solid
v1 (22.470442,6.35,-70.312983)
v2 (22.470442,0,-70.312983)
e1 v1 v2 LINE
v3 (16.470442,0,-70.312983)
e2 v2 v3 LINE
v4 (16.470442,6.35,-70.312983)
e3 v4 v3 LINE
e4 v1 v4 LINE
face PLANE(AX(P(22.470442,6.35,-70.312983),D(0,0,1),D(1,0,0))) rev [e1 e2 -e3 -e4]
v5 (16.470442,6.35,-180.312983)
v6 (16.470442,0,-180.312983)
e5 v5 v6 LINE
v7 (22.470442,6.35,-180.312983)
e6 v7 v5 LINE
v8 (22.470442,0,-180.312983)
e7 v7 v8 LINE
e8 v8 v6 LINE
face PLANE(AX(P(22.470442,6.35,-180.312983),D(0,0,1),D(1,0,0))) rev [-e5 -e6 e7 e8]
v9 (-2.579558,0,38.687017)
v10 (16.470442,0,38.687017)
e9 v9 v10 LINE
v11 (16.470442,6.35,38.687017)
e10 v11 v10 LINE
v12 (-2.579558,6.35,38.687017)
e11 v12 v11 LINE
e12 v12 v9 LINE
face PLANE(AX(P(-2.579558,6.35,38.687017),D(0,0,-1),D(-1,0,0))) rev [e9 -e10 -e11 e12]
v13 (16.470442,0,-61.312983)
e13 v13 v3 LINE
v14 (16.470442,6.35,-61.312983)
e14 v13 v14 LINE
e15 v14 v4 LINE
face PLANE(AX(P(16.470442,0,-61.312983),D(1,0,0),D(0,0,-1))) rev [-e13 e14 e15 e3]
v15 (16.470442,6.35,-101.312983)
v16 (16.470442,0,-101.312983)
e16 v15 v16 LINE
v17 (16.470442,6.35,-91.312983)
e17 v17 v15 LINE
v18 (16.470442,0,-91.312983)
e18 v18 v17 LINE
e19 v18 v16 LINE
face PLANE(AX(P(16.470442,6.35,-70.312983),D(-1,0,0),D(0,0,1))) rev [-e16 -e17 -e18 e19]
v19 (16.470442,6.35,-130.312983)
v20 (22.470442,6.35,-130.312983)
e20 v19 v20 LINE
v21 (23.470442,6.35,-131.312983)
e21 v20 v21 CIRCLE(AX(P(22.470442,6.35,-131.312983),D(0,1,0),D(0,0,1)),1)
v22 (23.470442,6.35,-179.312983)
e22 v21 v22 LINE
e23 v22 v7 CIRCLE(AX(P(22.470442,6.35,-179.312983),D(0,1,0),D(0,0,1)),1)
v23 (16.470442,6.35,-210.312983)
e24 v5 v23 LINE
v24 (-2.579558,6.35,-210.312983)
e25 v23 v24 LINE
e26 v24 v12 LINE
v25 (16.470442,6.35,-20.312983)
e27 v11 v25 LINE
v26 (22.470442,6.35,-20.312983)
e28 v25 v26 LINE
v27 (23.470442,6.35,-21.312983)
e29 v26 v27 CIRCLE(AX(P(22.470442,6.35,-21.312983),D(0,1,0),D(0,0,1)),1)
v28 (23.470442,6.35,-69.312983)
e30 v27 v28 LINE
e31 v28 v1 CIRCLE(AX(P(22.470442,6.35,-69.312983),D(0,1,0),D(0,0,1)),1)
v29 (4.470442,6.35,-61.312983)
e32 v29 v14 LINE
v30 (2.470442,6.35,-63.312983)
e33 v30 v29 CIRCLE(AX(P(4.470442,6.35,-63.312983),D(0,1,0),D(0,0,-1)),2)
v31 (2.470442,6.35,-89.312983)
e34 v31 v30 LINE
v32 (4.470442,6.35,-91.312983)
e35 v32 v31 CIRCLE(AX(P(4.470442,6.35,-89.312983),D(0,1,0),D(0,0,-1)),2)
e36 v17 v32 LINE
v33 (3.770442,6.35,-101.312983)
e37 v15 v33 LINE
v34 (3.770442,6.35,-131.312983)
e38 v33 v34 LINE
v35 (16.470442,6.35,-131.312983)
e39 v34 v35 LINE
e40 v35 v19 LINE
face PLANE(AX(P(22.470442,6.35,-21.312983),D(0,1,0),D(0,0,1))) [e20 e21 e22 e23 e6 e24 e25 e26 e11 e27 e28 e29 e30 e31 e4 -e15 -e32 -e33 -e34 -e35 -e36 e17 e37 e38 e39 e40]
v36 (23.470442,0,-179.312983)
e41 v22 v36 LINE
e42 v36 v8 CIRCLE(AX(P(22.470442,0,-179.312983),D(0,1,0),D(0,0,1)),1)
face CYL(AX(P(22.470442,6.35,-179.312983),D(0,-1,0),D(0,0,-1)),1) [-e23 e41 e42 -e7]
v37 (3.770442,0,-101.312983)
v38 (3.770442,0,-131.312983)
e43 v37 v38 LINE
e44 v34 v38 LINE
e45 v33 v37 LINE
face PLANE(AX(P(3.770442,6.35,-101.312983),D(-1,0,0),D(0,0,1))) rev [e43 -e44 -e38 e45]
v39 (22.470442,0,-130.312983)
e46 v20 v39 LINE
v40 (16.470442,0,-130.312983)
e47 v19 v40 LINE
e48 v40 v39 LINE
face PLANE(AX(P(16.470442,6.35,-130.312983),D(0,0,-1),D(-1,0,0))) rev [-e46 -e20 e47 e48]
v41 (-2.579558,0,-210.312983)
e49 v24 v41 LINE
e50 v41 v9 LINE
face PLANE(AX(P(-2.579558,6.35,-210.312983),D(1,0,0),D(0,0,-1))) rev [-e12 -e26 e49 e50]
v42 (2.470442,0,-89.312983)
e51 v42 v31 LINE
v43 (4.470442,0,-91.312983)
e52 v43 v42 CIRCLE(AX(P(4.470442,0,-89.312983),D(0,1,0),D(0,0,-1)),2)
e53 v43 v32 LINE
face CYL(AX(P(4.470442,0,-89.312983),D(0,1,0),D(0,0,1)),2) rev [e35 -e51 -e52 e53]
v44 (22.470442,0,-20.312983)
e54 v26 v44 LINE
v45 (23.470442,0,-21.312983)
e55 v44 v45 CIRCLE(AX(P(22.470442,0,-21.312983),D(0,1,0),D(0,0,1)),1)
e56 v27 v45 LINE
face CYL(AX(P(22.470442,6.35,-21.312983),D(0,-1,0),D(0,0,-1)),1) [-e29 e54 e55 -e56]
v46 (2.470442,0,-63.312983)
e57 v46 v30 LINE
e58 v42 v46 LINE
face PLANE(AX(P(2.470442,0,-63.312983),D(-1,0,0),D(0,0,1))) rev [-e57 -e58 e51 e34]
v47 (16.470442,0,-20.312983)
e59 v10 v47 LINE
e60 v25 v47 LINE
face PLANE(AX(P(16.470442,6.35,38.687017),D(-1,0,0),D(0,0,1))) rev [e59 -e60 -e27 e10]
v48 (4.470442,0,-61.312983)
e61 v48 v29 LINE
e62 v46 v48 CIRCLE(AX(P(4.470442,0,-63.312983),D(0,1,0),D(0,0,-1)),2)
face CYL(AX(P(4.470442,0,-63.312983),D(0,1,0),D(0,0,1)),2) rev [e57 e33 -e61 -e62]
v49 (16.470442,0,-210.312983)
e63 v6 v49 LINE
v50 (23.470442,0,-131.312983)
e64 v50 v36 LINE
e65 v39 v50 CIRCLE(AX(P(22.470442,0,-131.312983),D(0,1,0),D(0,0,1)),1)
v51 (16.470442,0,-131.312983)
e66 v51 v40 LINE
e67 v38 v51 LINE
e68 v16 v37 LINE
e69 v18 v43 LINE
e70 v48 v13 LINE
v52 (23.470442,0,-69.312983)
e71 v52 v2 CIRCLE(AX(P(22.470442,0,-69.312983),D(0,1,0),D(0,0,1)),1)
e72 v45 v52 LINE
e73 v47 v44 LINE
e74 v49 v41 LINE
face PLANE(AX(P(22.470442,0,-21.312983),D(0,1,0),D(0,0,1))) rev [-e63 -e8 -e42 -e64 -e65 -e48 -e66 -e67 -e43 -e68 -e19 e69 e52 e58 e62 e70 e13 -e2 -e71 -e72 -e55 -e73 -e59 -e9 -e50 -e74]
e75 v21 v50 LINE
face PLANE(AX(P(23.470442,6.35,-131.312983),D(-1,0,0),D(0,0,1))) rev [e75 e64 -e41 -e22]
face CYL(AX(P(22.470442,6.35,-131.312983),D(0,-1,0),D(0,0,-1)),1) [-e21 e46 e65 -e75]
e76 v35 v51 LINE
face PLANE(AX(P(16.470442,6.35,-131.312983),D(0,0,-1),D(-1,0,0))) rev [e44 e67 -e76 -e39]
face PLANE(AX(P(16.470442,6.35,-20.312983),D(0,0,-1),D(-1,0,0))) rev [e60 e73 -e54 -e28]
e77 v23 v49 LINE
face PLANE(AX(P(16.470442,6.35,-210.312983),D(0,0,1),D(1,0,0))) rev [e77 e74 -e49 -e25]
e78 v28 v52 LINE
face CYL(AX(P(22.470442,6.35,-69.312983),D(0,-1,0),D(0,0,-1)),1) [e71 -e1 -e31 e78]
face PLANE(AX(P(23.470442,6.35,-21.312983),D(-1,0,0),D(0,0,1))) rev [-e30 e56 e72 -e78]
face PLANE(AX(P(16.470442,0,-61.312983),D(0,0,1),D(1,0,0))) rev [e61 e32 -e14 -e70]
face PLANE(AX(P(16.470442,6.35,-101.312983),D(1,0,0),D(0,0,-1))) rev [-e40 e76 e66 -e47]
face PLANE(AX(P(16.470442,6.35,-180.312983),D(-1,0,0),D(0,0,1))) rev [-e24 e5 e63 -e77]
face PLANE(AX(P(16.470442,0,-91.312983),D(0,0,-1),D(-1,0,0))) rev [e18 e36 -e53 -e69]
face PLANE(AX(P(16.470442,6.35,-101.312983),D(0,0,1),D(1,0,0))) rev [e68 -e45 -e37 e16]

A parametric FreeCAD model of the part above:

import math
import FreeCAD as App
import Part
import Sketcher
from FreeCAD import Vector
Q = App.Units.Quantity


def add_polygon(sketch, points):
    """Adds a closed chain of lines whose ends are joined by coincident constraints."""
    first, n = sketch.GeometryCount, len(points)
    for a, b in zip(points, points[1:] + points[:1]):
        sketch.addGeometry(Part.LineSegment(App.Vector(*a, 0), App.Vector(*b, 0)), False)
    for i in range(n):
        sketch.addConstraint(Sketcher.Constraint("Coincident", first + i, 2, first + (i + 1) % n, 1))

doc = App.newDocument("Part")
params = doc.addObject("Spreadsheet::Sheet", "Params")
for row, (alias, value) in enumerate([
    ("sketch1_radius", "1 mm"),
    ("sketch1_width", "6 mm"),
    ("sketch1_height", "59 mm"),
    ("sketch1_height2", "48 mm"),
    ("sketch1_height3", "60 mm"),
    ("pad1_length", "6.35 mm"),
    ("sketch2_radius", "2 mm"),
    ("sketch2_width", "12 mm"),
    ("sketch2_height", "30 mm"),
    ("sketch3_height", "30 mm"),
    ("sketch3_width", "12.7 mm"),
], start=1):
    params.set(f"A{row}", alias)
    params.set(f"B{row}", "=" + value)
    params.setAlias(f"B{row}", alias)

body = doc.addObject("PartDesign::Body", "Body")

sketch1 = doc.addObject("Sketcher::SketchObject", "Sketch")
body.addObject(sketch1)
sketch1.AttachmentSupport = (doc.XZ_Plane, [""])
sketch1.MapMode = "FlatFace"
sketch1.addGeometry([
    Part.LineSegment(Vector(-2.579558, 38.687017, 0), Vector(16.470442, 38.687017, 0)),
    Part.LineSegment(Vector(16.470442, 38.687017, 0), Vector(16.470442, -20.312983, 0)),
    Part.LineSegment(Vector(16.470442, -20.312983, 0), Vector(22.470442, -20.312983, 0)),
    Part.ArcOfCircle(Part.Circle(Vector(22.470442, -21.312983, 0), Vector(0, 0, 1), 1), math.radians(0), math.radians(90)),
    Part.LineSegment(Vector(23.470442, -21.312983, 0), Vector(23.470442, -69.312983, 0)),
    Part.ArcOfCircle(Part.Circle(Vector(22.470442, -69.312983, 0), Vector(0, 0, 1), 1), math.radians(-90), math.radians(0)),
    Part.LineSegment(Vector(22.470442, -70.312983, 0), Vector(16.470442, -70.312983, 0)),
    Part.LineSegment(Vector(16.470442, -70.312983, 0), Vector(16.470442, -130.312983, 0)),
    Part.LineSegment(Vector(16.470442, -130.312983, 0), Vector(22.470442, -130.312983, 0)),
    Part.ArcOfCircle(Part.Circle(Vector(22.470442, -131.312983, 0), Vector(0, 0, 1), 1), math.radians(0), math.radians(90)),
    Part.LineSegment(Vector(23.470442, -131.312983, 0), Vector(23.470442, -179.312983, 0)),
    Part.ArcOfCircle(Part.Circle(Vector(22.470442, -179.312983, 0), Vector(0, 0, 1), 1), math.radians(-90), math.radians(0)),
    Part.LineSegment(Vector(22.470442, -180.312983, 0), Vector(16.470442, -180.312983, 0)),
    Part.LineSegment(Vector(16.470442, -180.312983, 0), Vector(16.470442, -210.312983, 0)),
    Part.LineSegment(Vector(16.470442, -210.312983, 0), Vector(-2.579558, -210.312983, 0)),
    Part.LineSegment(Vector(-2.579558, -210.312983, 0), Vector(-2.579558, 38.687017, 0)),
], False)
sketch1.addConstraint([
    Sketcher.Constraint("Coincident", 0, 2, 1, 1),
    Sketcher.Constraint("Coincident", 1, 2, 2, 1),
    Sketcher.Constraint("Tangent", 2, 2, 3, 2),
    Sketcher.Constraint("Tangent", 3, 1, 4, 1),
    Sketcher.Constraint("Tangent", 4, 2, 5, 2),
    Sketcher.Constraint("Tangent", 5, 1, 6, 1),
    Sketcher.Constraint("Coincident", 6, 2, 7, 1),
    Sketcher.Constraint("Coincident", 7, 2, 8, 1),
    Sketcher.Constraint("Tangent", 8, 2, 9, 2),
    Sketcher.Constraint("Tangent", 9, 1, 10, 1),
    Sketcher.Constraint("Tangent", 10, 2, 11, 2),
    Sketcher.Constraint("Tangent", 11, 1, 12, 1),
    Sketcher.Constraint("Coincident", 12, 2, 13, 1),
    Sketcher.Constraint("Coincident", 13, 2, 14, 1),
    Sketcher.Constraint("Coincident", 14, 2, 15, 1),
    Sketcher.Constraint("Coincident", 15, 2, 0, 1),
    Sketcher.Constraint("Horizontal", 0),
    Sketcher.Constraint("Vertical", 1),
    Sketcher.Constraint("Horizontal", 2),
    Sketcher.Constraint("Vertical", 4),
    Sketcher.Constraint("Horizontal", 6),
    Sketcher.Constraint("Vertical", 7),
    Sketcher.Constraint("Horizontal", 8),
    Sketcher.Constraint("Vertical", 10),
    Sketcher.Constraint("Horizontal", 12),
    Sketcher.Constraint("Vertical", 13),
    Sketcher.Constraint("Horizontal", 14),
    Sketcher.Constraint("Vertical", 15),
    Sketcher.Constraint("Equal", 3, 5),
    Sketcher.Constraint("Equal", 5, 9),
    Sketcher.Constraint("Equal", 9, 11),
    Sketcher.Constraint("Vertical", 5, 3, 9, 3),
    Sketcher.Constraint("Vertical", 1, 2, 6, 2),
    Sketcher.Constraint("Vertical", 7, 2, 12, 2),
    Sketcher.Constraint("Equal", 4, 10),
    Sketcher.Constraint("Radius", 3, Q("1 mm")),
    Sketcher.Constraint("DistanceX", 2, 1, 2, 2, Q("6 mm")),
    Sketcher.Constraint("DistanceY", 1, 2, 1, 1, Q("59 mm")),
    Sketcher.Constraint("DistanceY", 4, 2, 4, 1, Q("48 mm")),
    Sketcher.Constraint("DistanceY", 7, 2, 7, 1, Q("60 mm")),
    Sketcher.Constraint("DistanceY", 13, 2, 13, 1, Q("30 mm")),
    Sketcher.Constraint("DistanceX", 0, 1, 0, 2, Q("19.05 mm")),
    Sketcher.Constraint("DistanceX", -1, 1, 3, 3, Q("22.470442 mm")),
    Sketcher.Constraint("DistanceY", 3, 3, -1, 1, Q("21.312983 mm")),
])
sketch1.setExpression("Constraints[35]", "Params.sketch1_radius")
sketch1.setExpression("Constraints[36]", "Params.sketch1_width")
sketch1.setExpression("Constraints[37]", "Params.sketch1_height")
sketch1.setExpression("Constraints[38]", "Params.sketch1_height2")
sketch1.setExpression("Constraints[39]", "Params.sketch1_height3")
pad1 = doc.addObject("PartDesign::Pad", "Pad")
body.addObject(pad1)
pad1.Profile = sketch1
pad1.setExpression("Length", "Params.pad1_length")
pad1.Reversed = True

sketch2 = doc.addObject("Sketcher::SketchObject", "Sketch001")
body.addObject(sketch2)
sketch2.AttachmentSupport = (doc.XZ_Plane, [""])
sketch2.MapMode = "FlatFace"
sketch2.AttachmentOffset = App.Placement(Vector(0, 0, -6.35), App.Rotation())
sketch2.addGeometry([
    Part.LineSegment(Vector(4.470442, -61.312983, 0), Vector(16.470442, -61.312983, 0)),
    Part.LineSegment(Vector(16.470442, -61.312983, 0), Vector(16.470442, -91.312983, 0)),
    Part.LineSegment(Vector(16.470442, -91.312983, 0), Vector(4.470442, -91.312983, 0)),
    Part.ArcOfCircle(Part.Circle(Vector(4.470442, -89.312983, 0), Vector(0, 0, 1), 2), math.radians(180), math.radians(270)),
    Part.LineSegment(Vector(2.470442, -89.312983, 0), Vector(2.470442, -63.312983, 0)),
    Part.ArcOfCircle(Part.Circle(Vector(4.470442, -63.312983, 0), Vector(0, 0, 1), 2), math.radians(90), math.radians(180)),
], False)
sketch2.addConstraint([
    Sketcher.Constraint("Coincident", 0, 2, 1, 1),
    Sketcher.Constraint("Coincident", 1, 2, 2, 1),
    Sketcher.Constraint("Tangent", 2, 2, 3, 2),
    Sketcher.Constraint("Tangent", 3, 1, 4, 1),
    Sketcher.Constraint("Tangent", 4, 2, 5, 2),
    Sketcher.Constraint("Tangent", 5, 1, 0, 1),
    Sketcher.Constraint("Horizontal", 0),
    Sketcher.Constraint("Vertical", 1),
    Sketcher.Constraint("Horizontal", 2),
    Sketcher.Constraint("Vertical", 4),
    Sketcher.Constraint("Equal", 3, 5),
    Sketcher.Constraint("Radius", 3, Q("2 mm")),
    Sketcher.Constraint("DistanceX", 0, 1, 0, 2, Q("12 mm")),
    Sketcher.Constraint("DistanceY", 1, 2, 1, 1, Q("30 mm")),
    Sketcher.Constraint("DistanceX", -1, 1, 3, 3, Q("4.470442 mm")),
    Sketcher.Constraint("DistanceY", 3, 3, -1, 1, Q("89.312983 mm")),
])
sketch2.setExpression("Constraints[11]", "Params.sketch2_radius")
sketch2.setExpression("Constraints[12]", "Params.sketch2_width")
sketch2.setExpression("Constraints[13]", "Params.sketch2_height")
pocket1 = doc.addObject("PartDesign::Pocket", "Pocket")
body.addObject(pocket1)
pocket1.Profile = sketch2
pocket1.Type = "ThroughAll"
pocket1.Reversed = True

sketch3 = doc.addObject("Sketcher::SketchObject", "Sketch002")
body.addObject(sketch3)
sketch3.AttachmentSupport = (doc.XZ_Plane, [""])
sketch3.MapMode = "FlatFace"
add_polygon(sketch3, [(3.770442, -101.312983), (3.770442, -131.312983), (16.470442, -131.312983), (16.470442, -101.312983)])
sketch3.addConstraint([
    Sketcher.Constraint("Vertical", 0),
    Sketcher.Constraint("Horizontal", 1),
    Sketcher.Constraint("Vertical", 2),
    Sketcher.Constraint("Horizontal", 3),
    Sketcher.Constraint("DistanceY", 0, 2, 0, 1, Q("30 mm")),
    Sketcher.Constraint("DistanceX", 1, 1, 1, 2, Q("12.7 mm")),
    Sketcher.Constraint("DistanceX", -1, 1, 0, 2, Q("3.770442 mm")),
    Sketcher.Constraint("DistanceY", 0, 2, -1, 1, Q("131.312983 mm")),
])
sketch3.setExpression("Constraints[8]", "Params.sketch3_height")
sketch3.setExpression("Constraints[9]", "Params.sketch3_width")
pocket2 = doc.addObject("PartDesign::Pocket", "Pocket001")
body.addObject(pocket2)
pocket2.Profile = sketch3
pocket2.Type = "ThroughAll"

doc.recompute()
